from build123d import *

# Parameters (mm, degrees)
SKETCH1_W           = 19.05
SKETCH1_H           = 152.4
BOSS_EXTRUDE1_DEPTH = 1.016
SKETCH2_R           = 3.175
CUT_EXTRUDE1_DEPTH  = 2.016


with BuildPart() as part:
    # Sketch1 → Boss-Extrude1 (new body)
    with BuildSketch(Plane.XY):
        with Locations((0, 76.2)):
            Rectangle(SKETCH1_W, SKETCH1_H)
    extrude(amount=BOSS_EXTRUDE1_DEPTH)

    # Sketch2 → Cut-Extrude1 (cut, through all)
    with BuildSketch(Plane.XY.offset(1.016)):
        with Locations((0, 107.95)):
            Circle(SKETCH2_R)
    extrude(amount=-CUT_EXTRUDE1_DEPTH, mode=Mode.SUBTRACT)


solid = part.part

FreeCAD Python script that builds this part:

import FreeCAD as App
import Part
import Sketcher
Q = App.Units.Quantity

doc = App.newDocument("Part")
body = doc.addObject("PartDesign::Body", "Body")

sketch1 = doc.addObject("Sketcher::SketchObject", "Sketch")
body.addObject(sketch1)
sketch1.AttachmentSupport = (doc.XY_Plane, [""])
sketch1.MapMode = "FlatFace"
sketch1.addGeometry(Part.LineSegment(App.Vector(-9.525, 152.4, 0), App.Vector(-9.525, 0, 0)), False)
sketch1.addGeometry(Part.LineSegment(App.Vector(-9.525, 0, 0), App.Vector(9.525, 0, 0)), False)
sketch1.addGeometry(Part.LineSegment(App.Vector(9.525, 0, 0), App.Vector(9.525, 152.4, 0)), False)
sketch1.addGeometry(Part.LineSegment(App.Vector(9.525, 152.4, 0), App.Vector(-9.525, 152.4, 0)), False)
sketch1.addConstraint(Sketcher.Constraint("Coincident", 0, 2, 1, 1))
sketch1.addConstraint(Sketcher.Constraint("Coincident", 1, 2, 2, 1))
sketch1.addConstraint(Sketcher.Constraint("Coincident", 2, 2, 3, 1))
sketch1.addConstraint(Sketcher.Constraint("Coincident", 3, 2, 0, 1))
sketch1.addConstraint(Sketcher.Constraint("Vertical", 0))
sketch1.addConstraint(Sketcher.Constraint("Horizontal", 1))
sketch1.addConstraint(Sketcher.Constraint("Vertical", 2))
sketch1.addConstraint(Sketcher.Constraint("Horizontal", 3))
sketch1.addConstraint(Sketcher.Constraint("Symmetric", 0, 2, 1, 2, -1, 1))
sketch1.addConstraint(Sketcher.Constraint("DistanceY", 0, 2, 0, 1, Q("6 in")))
sketch1.addConstraint(Sketcher.Constraint("DistanceX", 1, 1, 1, 2, Q("0.75 in")))
pad1 = doc.addObject("PartDesign::Pad", "Pad")
body.addObject(pad1)
pad1.Profile = sketch1
pad1.Length = Q("0.04 in")

sketch2 = doc.addObject("Sketcher::SketchObject", "Sketch001")
body.addObject(sketch2)
sketch2.AttachmentSupport = (doc.XY_Plane, [""])
sketch2.MapMode = "FlatFace"
sketch2.AttachmentOffset = App.Placement(App.Vector(0, 0, 0.04 * 25.4), App.Rotation())
sketch2.addGeometry(Part.Circle(App.Vector(0, 107.95, 0), App.Vector(0, 0, 1), 3.175), False)
sketch2.addConstraint(Sketcher.Constraint("PointOnObject", 0, 3, -2))
sketch2.addConstraint(Sketcher.Constraint("Diameter", 0, Q("0.25 in")))
sketch2.addConstraint(Sketcher.Constraint("DistanceY", -1, 1, 0, 3, Q("4.25 in")))
pocket1 = doc.addObject("PartDesign::Pocket", "Pocket")
body.addObject(pocket1)
pocket1.Profile = sketch2
pocket1.Type = "ThroughAll"

doc.recompute()
